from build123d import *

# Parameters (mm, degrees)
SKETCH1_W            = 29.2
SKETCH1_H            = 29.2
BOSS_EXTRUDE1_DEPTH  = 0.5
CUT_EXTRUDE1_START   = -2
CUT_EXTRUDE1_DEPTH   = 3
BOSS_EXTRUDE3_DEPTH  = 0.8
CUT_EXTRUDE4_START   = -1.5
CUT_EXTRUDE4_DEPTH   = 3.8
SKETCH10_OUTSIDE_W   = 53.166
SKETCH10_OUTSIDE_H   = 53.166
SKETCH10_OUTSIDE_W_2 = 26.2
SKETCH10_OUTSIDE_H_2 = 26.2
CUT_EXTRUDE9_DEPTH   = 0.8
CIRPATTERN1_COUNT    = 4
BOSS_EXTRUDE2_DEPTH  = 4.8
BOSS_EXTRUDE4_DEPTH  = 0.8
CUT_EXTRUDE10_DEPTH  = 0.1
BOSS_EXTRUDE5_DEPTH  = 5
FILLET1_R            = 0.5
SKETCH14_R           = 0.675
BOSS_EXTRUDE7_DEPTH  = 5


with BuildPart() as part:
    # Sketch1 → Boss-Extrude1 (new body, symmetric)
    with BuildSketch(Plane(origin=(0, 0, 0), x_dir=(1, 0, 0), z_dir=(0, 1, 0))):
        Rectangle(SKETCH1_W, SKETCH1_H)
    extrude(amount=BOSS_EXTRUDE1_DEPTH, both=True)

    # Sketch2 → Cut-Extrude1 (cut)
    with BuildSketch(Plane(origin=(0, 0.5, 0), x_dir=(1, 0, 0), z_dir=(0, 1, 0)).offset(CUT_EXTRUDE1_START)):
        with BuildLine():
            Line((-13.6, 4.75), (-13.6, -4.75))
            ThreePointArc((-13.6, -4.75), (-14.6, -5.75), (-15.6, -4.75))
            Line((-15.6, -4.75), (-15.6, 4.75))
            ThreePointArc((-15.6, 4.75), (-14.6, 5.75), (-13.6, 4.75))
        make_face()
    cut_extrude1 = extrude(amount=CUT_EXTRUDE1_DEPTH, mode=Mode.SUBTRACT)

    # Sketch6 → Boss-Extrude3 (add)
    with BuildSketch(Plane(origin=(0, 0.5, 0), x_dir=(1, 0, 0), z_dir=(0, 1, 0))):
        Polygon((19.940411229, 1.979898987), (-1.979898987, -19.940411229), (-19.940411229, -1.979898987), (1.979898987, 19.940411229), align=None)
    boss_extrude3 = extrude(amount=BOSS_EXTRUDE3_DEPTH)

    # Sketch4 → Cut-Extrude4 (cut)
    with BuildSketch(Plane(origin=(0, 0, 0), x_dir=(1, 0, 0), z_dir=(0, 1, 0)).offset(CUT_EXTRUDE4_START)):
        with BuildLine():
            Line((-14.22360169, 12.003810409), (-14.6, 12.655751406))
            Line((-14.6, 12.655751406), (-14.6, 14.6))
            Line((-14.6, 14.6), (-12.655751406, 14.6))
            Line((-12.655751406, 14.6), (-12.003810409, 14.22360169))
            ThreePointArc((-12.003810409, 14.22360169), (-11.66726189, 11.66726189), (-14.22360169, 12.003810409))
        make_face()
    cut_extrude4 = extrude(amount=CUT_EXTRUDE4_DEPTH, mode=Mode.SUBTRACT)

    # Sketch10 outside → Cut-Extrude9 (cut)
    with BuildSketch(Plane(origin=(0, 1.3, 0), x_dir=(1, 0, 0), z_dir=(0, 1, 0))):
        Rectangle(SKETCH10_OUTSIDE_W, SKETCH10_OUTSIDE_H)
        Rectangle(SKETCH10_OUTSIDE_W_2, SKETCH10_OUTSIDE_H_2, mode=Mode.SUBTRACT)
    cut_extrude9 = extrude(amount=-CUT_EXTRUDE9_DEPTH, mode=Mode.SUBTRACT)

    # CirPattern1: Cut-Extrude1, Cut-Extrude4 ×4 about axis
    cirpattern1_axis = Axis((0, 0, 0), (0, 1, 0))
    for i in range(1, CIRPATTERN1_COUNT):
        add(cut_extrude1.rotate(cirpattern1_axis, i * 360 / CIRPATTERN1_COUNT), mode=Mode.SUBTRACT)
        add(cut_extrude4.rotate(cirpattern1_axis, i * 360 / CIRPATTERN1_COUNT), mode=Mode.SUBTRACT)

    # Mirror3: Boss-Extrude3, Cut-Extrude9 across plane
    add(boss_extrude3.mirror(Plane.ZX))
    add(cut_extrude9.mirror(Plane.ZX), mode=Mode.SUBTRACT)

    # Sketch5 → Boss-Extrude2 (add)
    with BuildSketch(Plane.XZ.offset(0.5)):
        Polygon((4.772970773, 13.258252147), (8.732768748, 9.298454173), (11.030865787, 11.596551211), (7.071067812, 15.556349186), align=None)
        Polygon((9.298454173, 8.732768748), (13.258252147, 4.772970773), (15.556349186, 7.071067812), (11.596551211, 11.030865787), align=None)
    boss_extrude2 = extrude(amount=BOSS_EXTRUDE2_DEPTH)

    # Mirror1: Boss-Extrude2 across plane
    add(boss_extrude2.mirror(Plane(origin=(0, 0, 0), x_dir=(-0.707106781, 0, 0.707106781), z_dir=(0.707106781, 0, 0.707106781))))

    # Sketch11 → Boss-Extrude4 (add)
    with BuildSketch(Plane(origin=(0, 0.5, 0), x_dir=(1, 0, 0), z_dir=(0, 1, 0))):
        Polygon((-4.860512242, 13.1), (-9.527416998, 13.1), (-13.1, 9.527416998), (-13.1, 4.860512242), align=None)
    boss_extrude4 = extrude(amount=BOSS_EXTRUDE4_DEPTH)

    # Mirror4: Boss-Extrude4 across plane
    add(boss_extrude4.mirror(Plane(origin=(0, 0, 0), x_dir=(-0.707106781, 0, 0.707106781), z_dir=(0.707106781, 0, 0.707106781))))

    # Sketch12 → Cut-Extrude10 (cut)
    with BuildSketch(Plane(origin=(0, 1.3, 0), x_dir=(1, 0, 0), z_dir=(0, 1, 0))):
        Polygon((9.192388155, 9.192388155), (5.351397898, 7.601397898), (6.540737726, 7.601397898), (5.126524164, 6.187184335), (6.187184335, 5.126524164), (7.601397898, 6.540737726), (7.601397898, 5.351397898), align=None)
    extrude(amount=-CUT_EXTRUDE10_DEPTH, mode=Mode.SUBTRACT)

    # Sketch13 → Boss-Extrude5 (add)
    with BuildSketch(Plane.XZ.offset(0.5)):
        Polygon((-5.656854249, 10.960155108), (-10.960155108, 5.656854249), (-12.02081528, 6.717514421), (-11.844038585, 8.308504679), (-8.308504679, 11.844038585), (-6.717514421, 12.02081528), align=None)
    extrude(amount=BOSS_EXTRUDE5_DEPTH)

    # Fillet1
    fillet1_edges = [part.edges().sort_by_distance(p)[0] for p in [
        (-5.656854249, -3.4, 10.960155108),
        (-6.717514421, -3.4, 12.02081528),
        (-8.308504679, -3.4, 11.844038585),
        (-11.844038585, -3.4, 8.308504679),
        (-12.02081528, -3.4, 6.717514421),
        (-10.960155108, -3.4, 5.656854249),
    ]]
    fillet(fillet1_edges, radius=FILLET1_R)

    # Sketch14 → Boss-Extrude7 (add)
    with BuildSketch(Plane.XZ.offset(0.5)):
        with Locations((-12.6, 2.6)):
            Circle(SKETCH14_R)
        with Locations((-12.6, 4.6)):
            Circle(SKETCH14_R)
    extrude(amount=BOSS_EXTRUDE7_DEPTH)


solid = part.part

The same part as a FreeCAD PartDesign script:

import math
import FreeCAD as App
import Part
import Sketcher

V = App.Vector
Q = App.Units.Quantity


def edges_at(feature, points):
    """Names of the edges that pass closest to the given points."""
    edges = feature.Shape.Edges
    near = lambda p: min(range(len(edges)), key=lambda i: edges[i].distToShape(Part.Vertex(*p))[0])
    return sorted({f"Edge{near(p) + 1}" for p in points})

doc = App.newDocument("Part")
body = doc.addObject("PartDesign::Body", "Body")

# Sketch on XZ plane
sketch1 = body.newObject("Sketcher::SketchObject", "Sketch")
sketch1.AttachmentSupport = (doc.getObject("XZ_Plane"), [""])
sketch1.MapMode = "FlatFace"
sketch1.addGeometry([
    Part.LineSegment(V(-14.6, -14.6, 0), V(-14.6, 14.6, 0)),
    Part.LineSegment(V(-14.6, 14.6, 0), V(14.6, 14.6, 0)),
    Part.LineSegment(V(14.6, 14.6, 0), V(14.6, -14.6, 0)),
    Part.LineSegment(V(14.6, -14.6, 0), V(-14.6, -14.6, 0)),
], False)
sketch1.addConstraint([
    Sketcher.Constraint("Coincident", 0, 2, 1, 1),
    Sketcher.Constraint("Coincident", 1, 2, 2, 1),
    Sketcher.Constraint("Coincident", 2, 2, 3, 1),
    Sketcher.Constraint("Coincident", 3, 2, 0, 1),
    Sketcher.Constraint("Vertical", 0),
    Sketcher.Constraint("Horizontal", 1),
    Sketcher.Constraint("Vertical", 2),
    Sketcher.Constraint("Horizontal", 3),
    Sketcher.Constraint("Symmetric", 0, 2, 2, 2, -1, 1),
    Sketcher.Constraint("Equal", 3, 0),
    Sketcher.Constraint("DistanceX", 1, 1, 1, 2, 29.2),
])
pad1 = body.newObject("PartDesign::Pad", "Pad")
pad1.Profile = sketch1
pad1.Length = 1
pad1.Midplane = True

# Sketch on XZ plane
sketch2 = body.newObject("Sketcher::SketchObject", "Sketch001")
sketch2.AttachmentSupport = (doc.getObject("XZ_Plane"), [""])
sketch2.MapMode = "FlatFace"
sketch2.AttachmentOffset = App.Placement(V(0, 0, 1.5), App.Rotation())
sketch2.addGeometry([
    Part.LineSegment(V(-13.6, 4.75, 0), V(-13.6, -4.75, 0)),
    Part.ArcOfCircle(Part.Circle(V(-14.6, -4.75, 0), V(0, 0, 1), 1), math.radians(180), math.radians(360)),
    Part.LineSegment(V(-15.6, -4.75, 0), V(-15.6, 4.75, 0)),
    Part.ArcOfCircle(Part.Circle(V(-14.6, 4.75, 0), V(0, 0, 1), 1), math.radians(0), math.radians(180)),
], False)
sketch2.addConstraint([
    Sketcher.Constraint("Tangent", 0, 2, 1, 2),
    Sketcher.Constraint("Tangent", 1, 1, 2, 1),
    Sketcher.Constraint("Tangent", 2, 2, 3, 2),
    Sketcher.Constraint("Tangent", 3, 1, 0, 1),
    Sketcher.Constraint("Vertical", 0),
    Sketcher.Constraint("Vertical", 2),
    Sketcher.Constraint("Radius", 1, 1.0),
    Sketcher.Constraint("DistanceY", 0, 2, 0, 1, 9.5),
    Sketcher.Constraint("DistanceX", 1, 3, -1, 1, 14.6),
    Sketcher.Constraint("DistanceY", 1, 3, -1, 1, 4.75),
])
pocket1 = body.newObject("PartDesign::Pocket", "Pocket")
pocket1.Profile = sketch2
pocket1.Length = 3

# Sketch on XZ plane
sketch3 = body.newObject("Sketcher::SketchObject", "Sketch002")
sketch3.AttachmentSupport = (doc.getObject("XZ_Plane"), [""])
sketch3.MapMode = "FlatFace"
sketch3.AttachmentOffset = App.Placement(V(0, 0, -0.5), App.Rotation())
sketch3.addGeometry([
    Part.LineSegment(V(-1.979899, 19.940411, 0), V(19.940411, -1.979899, 0)),
    Part.LineSegment(V(19.940411, -1.979899, 0), V(1.979899, -19.940411, 0)),
    Part.LineSegment(V(1.979899, -19.940411, 0), V(-19.940411, 1.979899, 0)),
    Part.LineSegment(V(-19.940411, 1.979899, 0), V(-1.979899, 19.940411, 0)),
], False)
sketch3.addConstraint([
    Sketcher.Constraint("Coincident", 0, 2, 1, 1),
    Sketcher.Constraint("Coincident", 1, 2, 2, 1),
    Sketcher.Constraint("Coincident", 2, 2, 3, 1),
    Sketcher.Constraint("Coincident", 3, 2, 0, 1),
    Sketcher.Constraint("Symmetric", 0, 2, 2, 2, -1, 1),
    Sketcher.Constraint("Symmetric", 1, 2, 3, 2, -1, 1),
    Sketcher.Constraint("Perpendicular", 0, 1),
    Sketcher.Constraint("Angle", 0, Q("-45 deg")),
    Sketcher.Constraint("Distance", 0, 31.0),
    Sketcher.Constraint("Distance", 1, 25.4),
])
pad2 = body.newObject("PartDesign::Pad", "Pad001")
pad2.Profile = sketch3
pad2.Length = 0.8
pad2.Reversed = True

# Sketch on XZ plane
sketch4 = body.newObject("Sketcher::SketchObject", "Sketch003")
sketch4.AttachmentSupport = (doc.getObject("XZ_Plane"), [""])
sketch4.MapMode = "FlatFace"
sketch4.AttachmentOffset = App.Placement(V(0, 0, 1.5), App.Rotation())
sketch4.addGeometry([
    Part.LineSegment(V(-14.6, -12.655751, 0), V(-14.223602, -12.00381, 0)),  # 0
    Part.ArcOfCircle(Part.Circle(V(-12.81631, -12.81631, 0), V(0, 0, 1), 1.625), math.radians(-60), math.radians(150)),  # 1
    Part.LineSegment(V(-12.00381, -14.223602, 0), V(-12.655751, -14.6, 0)),  # 2
    Part.LineSegment(V(-12.655751, -14.6, 0), V(-14.6, -14.6, 0)),  # 3
    Part.LineSegment(V(-14.6, -14.6, 0), V(-14.6, -12.655751, 0)),  # 4
], False)
sketch4.addConstraint([
    Sketcher.Constraint("Tangent", 0, 2, 1, 2),
    Sketcher.Constraint("Tangent", 1, 1, 2, 1),
    Sketcher.Constraint("Coincident", 2, 2, 3, 1),
    Sketcher.Constraint("Coincident", 3, 2, 4, 1),
    Sketcher.Constraint("Coincident", 4, 2, 0, 1),
    Sketcher.Constraint("Horizontal", 3),
    Sketcher.Constraint("Vertical", 4),
    Sketcher.Constraint("Equal", 3, 4),
    Sketcher.Constraint("Equal", 0, 2),
    Sketcher.Constraint("Angle", 0, Q("60 deg")),
    Sketcher.Constraint("Radius", 1, 1.625),
    Sketcher.Constraint("DistanceY", 2, 2, -1, 1, 14.6),
    Sketcher.Constraint("DistanceX", 3, 2, -1, 1, 14.6),
    Sketcher.Constraint("DistanceX", 3, 2, 3, 1, 1.944249),
])
pocket2 = body.newObject("PartDesign::Pocket", "Pocket001")
pocket2.Profile = sketch4
pocket2.Length = 3.8

# Sketch on XZ plane
sketch5 = body.newObject("Sketcher::SketchObject", "Sketch004")
sketch5.AttachmentSupport = (doc.getObject("XZ_Plane"), [""])
sketch5.MapMode = "FlatFace"
sketch5.AttachmentOffset = App.Placement(V(0, 0, -1.3), App.Rotation())
sketch5.addGeometry([
    Part.LineSegment(V(-26.583, -26.583, 0), V(-26.583, 26.583, 0)),  # 0
    Part.LineSegment(V(-26.583, 26.583, 0), V(26.583, 26.583, 0)),  # 1
    Part.LineSegment(V(26.583, 26.583, 0), V(26.583, -26.583, 0)),  # 2
    Part.LineSegment(V(26.583, -26.583, 0), V(-26.583, -26.583, 0)),  # 3
    Part.LineSegment(V(13.1, 13.1, 0), V(-13.1, 13.1, 0)),  # 4
    Part.LineSegment(V(-13.1, 13.1, 0), V(-13.1, -13.1, 0)),  # 5
    Part.LineSegment(V(-13.1, -13.1, 0), V(13.1, -13.1, 0)),  # 6
    Part.LineSegment(V(13.1, -13.1, 0), V(13.1, 13.1, 0)),  # 7
], False)
sketch5.addConstraint([
    Sketcher.Constraint("Coincident", 0, 2, 1, 1),
    Sketcher.Constraint("Coincident", 1, 2, 2, 1),
    Sketcher.Constraint("Coincident", 2, 2, 3, 1),
    Sketcher.Constraint("Coincident", 3, 2, 0, 1),
    Sketcher.Constraint("Coincident", 4, 2, 5, 1),
    Sketcher.Constraint("Coincident", 5, 2, 6, 1),
    Sketcher.Constraint("Coincident", 6, 2, 7, 1),
    Sketcher.Constraint("Coincident", 7, 2, 4, 1),
    Sketcher.Constraint("Vertical", 0),
    Sketcher.Constraint("Horizontal", 1),
    Sketcher.Constraint("Vertical", 2),
    Sketcher.Constraint("Horizontal", 3),
    Sketcher.Constraint("Horizontal", 4),
    Sketcher.Constraint("Vertical", 5),
    Sketcher.Constraint("Horizontal", 6),
    Sketcher.Constraint("Vertical", 7),
    Sketcher.Constraint("Symmetric", 0, 2, 2, 2, -1, 1),
    Sketcher.Constraint("Symmetric", 4, 2, 6, 2, -1, 1),
    Sketcher.Constraint("Equal", 3, 0),
    Sketcher.Constraint("Equal", 6, 5),
    Sketcher.Constraint("DistanceX", 4, 2, 4, 1, 26.2),
    Sketcher.Constraint("DistanceX", 1, 1, 1, 2, 53.166),
])
pocket3 = body.newObject("PartDesign::Pocket", "Pocket002")
pocket3.Profile = sketch5
pocket3.Length = 0.8
pocket3.Reversed = True
doc.recompute()

polarpattern = body.newObject("PartDesign::PolarPattern", "PolarPattern")
polarpattern.Originals = [pocket1, pocket2]
polarpattern.Axis = (doc.getObject("Y_Axis"), [""])
polarpattern.Angle = 360
polarpattern.Occurrences = 4
body.Tip = polarpattern
doc.recompute()

mirrored = body.newObject("PartDesign::Mirrored", "Mirrored")
mirrored.Originals = [pad2, pocket3]
mirrored.MirrorPlane = (doc.getObject("XZ_Plane"), [""])
body.Tip = mirrored

# Sketch on XZ plane
sketch6 = body.newObject("Sketcher::SketchObject", "Sketch005")
sketch6.AttachmentSupport = (doc.getObject("XZ_Plane"), [""])
sketch6.MapMode = "FlatFace"
sketch6.AttachmentOffset = App.Placement(V(0, 0, 0.5), App.Rotation())
sketch6.addGeometry([
    Part.LineSegment(V(4.772971, 13.258252, 0), V(8.732769, 9.298454, 0)),  # 0
    Part.LineSegment(V(8.732769, 9.298454, 0), V(11.030866, 11.596551, 0)),  # 1
    Part.LineSegment(V(11.030866, 11.596551, 0), V(7.071068, 15.556349, 0)),  # 2
    Part.LineSegment(V(7.071068, 15.556349, 0), V(4.772971, 13.258252, 0)),  # 3
    Part.LineSegment(V(9.298454, 8.732769, 0), V(13.258252, 4.772971, 0)),  # 4
    Part.LineSegment(V(13.258252, 4.772971, 0), V(15.556349, 7.071068, 0)),  # 5
    Part.LineSegment(V(15.556349, 7.071068, 0), V(11.596551, 11.030866, 0)),  # 6
    Part.LineSegment(V(11.596551, 11.030866, 0), V(9.298454, 8.732769, 0)),  # 7
], False)
sketch6.addConstraint([
    Sketcher.Constraint("Coincident", 0, 2, 1, 1),
    Sketcher.Constraint("Coincident", 1, 2, 2, 1),
    Sketcher.Constraint("Coincident", 2, 2, 3, 1),
    Sketcher.Constraint("Coincident", 3, 2, 0, 1),
    Sketcher.Constraint("Coincident", 4, 2, 5, 1),
    Sketcher.Constraint("Coincident", 5, 2, 6, 1),
    Sketcher.Constraint("Coincident", 6, 2, 7, 1),
    Sketcher.Constraint("Coincident", 7, 2, 4, 1),
    Sketcher.Constraint("Perpendicular", 0, 1),
    Sketcher.Constraint("Perpendicular", 1, 2),
    Sketcher.Constraint("Perpendicular", 2, 3),
    Sketcher.Constraint("Perpendicular", 3, 4),
    Sketcher.Constraint("Perpendicular", 4, 5),
    Sketcher.Constraint("Perpendicular", 5, 6),
    Sketcher.Constraint("Perpendicular", 6, 7),
    Sketcher.Constraint("Equal", 2, 4),
    Sketcher.Constraint("Equal", 3, 5),
    Sketcher.Constraint("Angle", 0, Q("-45 deg")),
    Sketcher.Constraint("Distance", 0, 5.6),
    Sketcher.Constraint("Distance", 1, 3.25),
    Sketcher.Constraint("DistanceX", -1, 1, 0, 2, 8.732769),
    Sketcher.Constraint("DistanceY", -1, 1, 1, 2, 11.596551),
    Sketcher.Constraint("DistanceY", -1, 1, 4, 2, 4.772971),
    Sketcher.Constraint("DistanceX", -1, 1, 5, 2, 15.556349),
])
pad3 = body.newObject("PartDesign::Pad", "Pad002")
pad3.Profile = sketch6
pad3.Length = 4.8
doc.recompute()

datumplane = body.newObject("PartDesign::Plane", "DatumPlane")
datumplane.Placement = App.Placement(V(0, 0, 0), App.Rotation(V(-0.707106781, 0, 0.707106781), V(0, -1, 0), V(0.707106781, 0, 0.707106781), "ZXY"))
mirrored2 = body.newObject("PartDesign::Mirrored", "Mirrored001")
mirrored2.Originals = [pad3]
mirrored2.MirrorPlane = (datumplane, [""])
body.Tip = mirrored2

# Sketch on XZ plane
sketch7 = body.newObject("Sketcher::SketchObject", "Sketch006")
sketch7.AttachmentSupport = (doc.getObject("XZ_Plane"), [""])
sketch7.MapMode = "FlatFace"
sketch7.AttachmentOffset = App.Placement(V(0, 0, -0.5), App.Rotation())
sketch7.addGeometry([
    Part.LineSegment(V(-4.860512, -13.1, 0), V(-9.527417, -13.1, 0)),
    Part.LineSegment(V(-9.527417, -13.1, 0), V(-13.1, -9.527417, 0)),
    Part.LineSegment(V(-13.1, -9.527417, 0), V(-13.1, -4.860512, 0)),
    Part.LineSegment(V(-13.1, -4.860512, 0), V(-4.860512, -13.1, 0)),
], False)
sketch7.addConstraint([
    Sketcher.Constraint("Coincident", 0, 2, 1, 1),
    Sketcher.Constraint("Coincident", 1, 2, 2, 1),
    Sketcher.Constraint("Coincident", 2, 2, 3, 1),
    Sketcher.Constraint("Coincident", 3, 2, 0, 1),
    Sketcher.Constraint("Horizontal", 0),
    Sketcher.Constraint("Vertical", 2),
    Sketcher.Constraint("Parallel", 1, 3),
    Sketcher.Constraint("Equal", 0, 2),
    Sketcher.Constraint("DistanceY", 0, 2, -1, 1, 13.1),
    Sketcher.Constraint("DistanceX", 1, 2, -1, 1, 13.1),
    Sketcher.Constraint("DistanceX", 0, 2, 0, 1, 4.666905),
    Sketcher.Constraint("Distance", 1, 5.052395),
])
pad4 = body.newObject("PartDesign::Pad", "Pad003")
pad4.Profile = sketch7
pad4.Length = 0.8
pad4.Reversed = True
doc.recompute()

datumplane2 = body.newObject("PartDesign::Plane", "DatumPlane001")
datumplane2.Placement = App.Placement(V(0, 0, 0), App.Rotation(V(-0.707106781, 0, 0.707106781), V(0, -1, 0), V(0.707106781, 0, 0.707106781), "ZXY"))
mirrored3 = body.newObject("PartDesign::Mirrored", "Mirrored002")
mirrored3.Originals = [pad4]
mirrored3.MirrorPlane = (datumplane2, [""])
body.Tip = mirrored3

# Sketch on XZ plane
sketch8 = body.newObject("Sketcher::SketchObject", "Sketch007")
sketch8.AttachmentSupport = (doc.getObject("XZ_Plane"), [""])
sketch8.MapMode = "FlatFace"
sketch8.AttachmentOffset = App.Placement(V(0, 0, -1.3), App.Rotation())
sketch8.addGeometry([
    Part.LineSegment(V(9.192388, -9.192388, 0), V(5.351398, -7.601398, 0)),  # 0
    Part.LineSegment(V(5.351398, -7.601398, 0), V(6.540738, -7.601398, 0)),  # 1
    Part.LineSegment(V(6.540738, -7.601398, 0), V(5.126524, -6.187184, 0)),  # 2
    Part.LineSegment(V(5.126524, -6.187184, 0), V(6.187184, -5.126524, 0)),  # 3
    Part.LineSegment(V(6.187184, -5.126524, 0), V(7.601398, -6.540738, 0)),  # 4
    Part.LineSegment(V(7.601398, -6.540738, 0), V(7.601398, -5.351398, 0)),  # 5
    Part.LineSegment(V(7.601398, -5.351398, 0), V(9.192388, -9.192388, 0)),  # 6
], False)
sketch8.addConstraint([
    Sketcher.Constraint("Coincident", 0, 2, 1, 1),
    Sketcher.Constraint("Coincident", 1, 2, 2, 1),
    Sketcher.Constraint("Coincident", 2, 2, 3, 1),
    Sketcher.Constraint("Coincident", 3, 2, 4, 1),
    Sketcher.Constraint("Coincident", 4, 2, 5, 1),
    Sketcher.Constraint("Coincident", 5, 2, 6, 1),
    Sketcher.Constraint("Coincident", 6, 2, 0, 1),
    Sketcher.Constraint("Horizontal", 1),
    Sketcher.Constraint("Vertical", 5),
    Sketcher.Constraint("Perpendicular", 2, 3),
    Sketcher.Constraint("Perpendicular", 3, 4),
    Sketcher.Constraint("Equal", 1, 5),
    Sketcher.Constraint("Equal", 2, 4),
    Sketcher.Constraint("Equal", 0, 6),
    Sketcher.Constraint("Angle", 2, Q("135 deg")),
    Sketcher.Constraint("Distance", 2, 2.0),
    Sketcher.Constraint("Angle", 0, Q("157.5 deg")),
    Sketcher.Constraint("Distance", 3, 1.5),
    Sketcher.Constraint("DistanceX", 0, 2, 4, 2, 2.25),
    Sketcher.Constraint("DistanceX", -1, 1, 6, 2, 9.192388),
    Sketcher.Constraint("DistanceY", 6, 2, -1, 1, 9.192388),
])
pocket4 = body.newObject("PartDesign::Pocket", "Pocket003")
pocket4.Profile = sketch8
pocket4.Length = 0.1
pocket4.Reversed = True

# Sketch on XZ plane
sketch9 = body.newObject("Sketcher::SketchObject", "Sketch008")
sketch9.AttachmentSupport = (doc.getObject("XZ_Plane"), [""])
sketch9.MapMode = "FlatFace"
sketch9.AttachmentOffset = App.Placement(V(0, 0, 0.5), App.Rotation())
sketch9.addGeometry([
    Part.LineSegment(V(-10.960155, 5.656854, 0), V(-5.656854, 10.960155, 0)),  # 0
    Part.LineSegment(V(-5.656854, 10.960155, 0), V(-6.717514, 12.020815, 0)),  # 1
    Part.LineSegment(V(-6.717514, 12.020815, 0), V(-8.308505, 11.844039, 0)),  # 2
    Part.LineSegment(V(-8.308505, 11.844039, 0), V(-11.844039, 8.308505, 0)),  # 3
    Part.LineSegment(V(-11.844039, 8.308505, 0), V(-12.020815, 6.717514, 0)),  # 4
    Part.LineSegment(V(-12.020815, 6.717514, 0), V(-10.960155, 5.656854, 0)),  # 5
], False)
sketch9.addConstraint([
    Sketcher.Constraint("Coincident", 0, 2, 1, 1),
    Sketcher.Constraint("Coincident", 1, 2, 2, 1),
    Sketcher.Constraint("Coincident", 2, 2, 3, 1),
    Sketcher.Constraint("Coincident", 3, 2, 4, 1),
    Sketcher.Constraint("Coincident", 4, 2, 5, 1),
    Sketcher.Constraint("Coincident", 5, 2, 0, 1),
    Sketcher.Constraint("Perpendicular", 0, 1),
    Sketcher.Constraint("Perpendicular", 1, 3),
    Sketcher.Constraint("Perpendicular", 3, 5),
    Sketcher.Constraint("Equal", 2, 4),
    Sketcher.Constraint("Equal", 1, 5),
    Sketcher.Constraint("Angle", 0, Q("45 deg")),
    Sketcher.Constraint("Distance", 3, 5.0),
    Sketcher.Constraint("Distance", 0, 7.5),
    Sketcher.Constraint("Distance", 1, 1.5),
    Sketcher.Constraint("Distance", 2, 1.600781),
    Sketcher.Constraint("DistanceY", -1, 1, 2, 2, 11.844039),
    Sketcher.Constraint("DistanceX", 3, 2, -1, 1, 11.844039),
])
pad5 = body.newObject("PartDesign::Pad", "Pad004")
pad5.Profile = sketch9
pad5.Length = 5
doc.recompute()

fillet = body.newObject("PartDesign::Fillet", "Fillet")
fillet.Base = (pad5, edges_at(pad5, [
    (-5.657, -3.4, 10.96),
    (-6.718, -3.4, 12.021),
    (-8.309, -3.4, 11.844),
    (-11.844, -3.4, 8.309),
    (-12.021, -3.4, 6.718),
    (-10.96, -3.4, 5.657),
]))
fillet.Radius = 0.5

# Sketch on XZ plane
sketch10 = body.newObject("Sketcher::SketchObject", "Sketch009")
sketch10.AttachmentSupport = (doc.getObject("XZ_Plane"), [""])
sketch10.MapMode = "FlatFace"
sketch10.AttachmentOffset = App.Placement(V(0, 0, 0.5), App.Rotation())
sketch10.addGeometry([
    Part.Circle(V(-12.6, 2.6, 0), V(0, 0, 1), 0.675),
    Part.Circle(V(-12.6, 4.6, 0), V(0, 0, 1), 0.675),
], False)
sketch10.addConstraint([
    Sketcher.Constraint("Equal", 0, 1),
    Sketcher.Constraint("Vertical", 0, 3, 1, 3),
    Sketcher.Constraint("Diameter", 0, 1.35),
    Sketcher.Constraint("DistanceY", 0, 3, 1, 3, 2.0),
    Sketcher.Constraint("DistanceX", 0, 3, -1, 1, 12.6),
    Sketcher.Constraint("DistanceY", -1, 1, 0, 3, 2.6),
])
pad6 = body.newObject("PartDesign::Pad", "Pad005")
pad6.Profile = sketch10
pad6.Length = 5

doc.recompute()
